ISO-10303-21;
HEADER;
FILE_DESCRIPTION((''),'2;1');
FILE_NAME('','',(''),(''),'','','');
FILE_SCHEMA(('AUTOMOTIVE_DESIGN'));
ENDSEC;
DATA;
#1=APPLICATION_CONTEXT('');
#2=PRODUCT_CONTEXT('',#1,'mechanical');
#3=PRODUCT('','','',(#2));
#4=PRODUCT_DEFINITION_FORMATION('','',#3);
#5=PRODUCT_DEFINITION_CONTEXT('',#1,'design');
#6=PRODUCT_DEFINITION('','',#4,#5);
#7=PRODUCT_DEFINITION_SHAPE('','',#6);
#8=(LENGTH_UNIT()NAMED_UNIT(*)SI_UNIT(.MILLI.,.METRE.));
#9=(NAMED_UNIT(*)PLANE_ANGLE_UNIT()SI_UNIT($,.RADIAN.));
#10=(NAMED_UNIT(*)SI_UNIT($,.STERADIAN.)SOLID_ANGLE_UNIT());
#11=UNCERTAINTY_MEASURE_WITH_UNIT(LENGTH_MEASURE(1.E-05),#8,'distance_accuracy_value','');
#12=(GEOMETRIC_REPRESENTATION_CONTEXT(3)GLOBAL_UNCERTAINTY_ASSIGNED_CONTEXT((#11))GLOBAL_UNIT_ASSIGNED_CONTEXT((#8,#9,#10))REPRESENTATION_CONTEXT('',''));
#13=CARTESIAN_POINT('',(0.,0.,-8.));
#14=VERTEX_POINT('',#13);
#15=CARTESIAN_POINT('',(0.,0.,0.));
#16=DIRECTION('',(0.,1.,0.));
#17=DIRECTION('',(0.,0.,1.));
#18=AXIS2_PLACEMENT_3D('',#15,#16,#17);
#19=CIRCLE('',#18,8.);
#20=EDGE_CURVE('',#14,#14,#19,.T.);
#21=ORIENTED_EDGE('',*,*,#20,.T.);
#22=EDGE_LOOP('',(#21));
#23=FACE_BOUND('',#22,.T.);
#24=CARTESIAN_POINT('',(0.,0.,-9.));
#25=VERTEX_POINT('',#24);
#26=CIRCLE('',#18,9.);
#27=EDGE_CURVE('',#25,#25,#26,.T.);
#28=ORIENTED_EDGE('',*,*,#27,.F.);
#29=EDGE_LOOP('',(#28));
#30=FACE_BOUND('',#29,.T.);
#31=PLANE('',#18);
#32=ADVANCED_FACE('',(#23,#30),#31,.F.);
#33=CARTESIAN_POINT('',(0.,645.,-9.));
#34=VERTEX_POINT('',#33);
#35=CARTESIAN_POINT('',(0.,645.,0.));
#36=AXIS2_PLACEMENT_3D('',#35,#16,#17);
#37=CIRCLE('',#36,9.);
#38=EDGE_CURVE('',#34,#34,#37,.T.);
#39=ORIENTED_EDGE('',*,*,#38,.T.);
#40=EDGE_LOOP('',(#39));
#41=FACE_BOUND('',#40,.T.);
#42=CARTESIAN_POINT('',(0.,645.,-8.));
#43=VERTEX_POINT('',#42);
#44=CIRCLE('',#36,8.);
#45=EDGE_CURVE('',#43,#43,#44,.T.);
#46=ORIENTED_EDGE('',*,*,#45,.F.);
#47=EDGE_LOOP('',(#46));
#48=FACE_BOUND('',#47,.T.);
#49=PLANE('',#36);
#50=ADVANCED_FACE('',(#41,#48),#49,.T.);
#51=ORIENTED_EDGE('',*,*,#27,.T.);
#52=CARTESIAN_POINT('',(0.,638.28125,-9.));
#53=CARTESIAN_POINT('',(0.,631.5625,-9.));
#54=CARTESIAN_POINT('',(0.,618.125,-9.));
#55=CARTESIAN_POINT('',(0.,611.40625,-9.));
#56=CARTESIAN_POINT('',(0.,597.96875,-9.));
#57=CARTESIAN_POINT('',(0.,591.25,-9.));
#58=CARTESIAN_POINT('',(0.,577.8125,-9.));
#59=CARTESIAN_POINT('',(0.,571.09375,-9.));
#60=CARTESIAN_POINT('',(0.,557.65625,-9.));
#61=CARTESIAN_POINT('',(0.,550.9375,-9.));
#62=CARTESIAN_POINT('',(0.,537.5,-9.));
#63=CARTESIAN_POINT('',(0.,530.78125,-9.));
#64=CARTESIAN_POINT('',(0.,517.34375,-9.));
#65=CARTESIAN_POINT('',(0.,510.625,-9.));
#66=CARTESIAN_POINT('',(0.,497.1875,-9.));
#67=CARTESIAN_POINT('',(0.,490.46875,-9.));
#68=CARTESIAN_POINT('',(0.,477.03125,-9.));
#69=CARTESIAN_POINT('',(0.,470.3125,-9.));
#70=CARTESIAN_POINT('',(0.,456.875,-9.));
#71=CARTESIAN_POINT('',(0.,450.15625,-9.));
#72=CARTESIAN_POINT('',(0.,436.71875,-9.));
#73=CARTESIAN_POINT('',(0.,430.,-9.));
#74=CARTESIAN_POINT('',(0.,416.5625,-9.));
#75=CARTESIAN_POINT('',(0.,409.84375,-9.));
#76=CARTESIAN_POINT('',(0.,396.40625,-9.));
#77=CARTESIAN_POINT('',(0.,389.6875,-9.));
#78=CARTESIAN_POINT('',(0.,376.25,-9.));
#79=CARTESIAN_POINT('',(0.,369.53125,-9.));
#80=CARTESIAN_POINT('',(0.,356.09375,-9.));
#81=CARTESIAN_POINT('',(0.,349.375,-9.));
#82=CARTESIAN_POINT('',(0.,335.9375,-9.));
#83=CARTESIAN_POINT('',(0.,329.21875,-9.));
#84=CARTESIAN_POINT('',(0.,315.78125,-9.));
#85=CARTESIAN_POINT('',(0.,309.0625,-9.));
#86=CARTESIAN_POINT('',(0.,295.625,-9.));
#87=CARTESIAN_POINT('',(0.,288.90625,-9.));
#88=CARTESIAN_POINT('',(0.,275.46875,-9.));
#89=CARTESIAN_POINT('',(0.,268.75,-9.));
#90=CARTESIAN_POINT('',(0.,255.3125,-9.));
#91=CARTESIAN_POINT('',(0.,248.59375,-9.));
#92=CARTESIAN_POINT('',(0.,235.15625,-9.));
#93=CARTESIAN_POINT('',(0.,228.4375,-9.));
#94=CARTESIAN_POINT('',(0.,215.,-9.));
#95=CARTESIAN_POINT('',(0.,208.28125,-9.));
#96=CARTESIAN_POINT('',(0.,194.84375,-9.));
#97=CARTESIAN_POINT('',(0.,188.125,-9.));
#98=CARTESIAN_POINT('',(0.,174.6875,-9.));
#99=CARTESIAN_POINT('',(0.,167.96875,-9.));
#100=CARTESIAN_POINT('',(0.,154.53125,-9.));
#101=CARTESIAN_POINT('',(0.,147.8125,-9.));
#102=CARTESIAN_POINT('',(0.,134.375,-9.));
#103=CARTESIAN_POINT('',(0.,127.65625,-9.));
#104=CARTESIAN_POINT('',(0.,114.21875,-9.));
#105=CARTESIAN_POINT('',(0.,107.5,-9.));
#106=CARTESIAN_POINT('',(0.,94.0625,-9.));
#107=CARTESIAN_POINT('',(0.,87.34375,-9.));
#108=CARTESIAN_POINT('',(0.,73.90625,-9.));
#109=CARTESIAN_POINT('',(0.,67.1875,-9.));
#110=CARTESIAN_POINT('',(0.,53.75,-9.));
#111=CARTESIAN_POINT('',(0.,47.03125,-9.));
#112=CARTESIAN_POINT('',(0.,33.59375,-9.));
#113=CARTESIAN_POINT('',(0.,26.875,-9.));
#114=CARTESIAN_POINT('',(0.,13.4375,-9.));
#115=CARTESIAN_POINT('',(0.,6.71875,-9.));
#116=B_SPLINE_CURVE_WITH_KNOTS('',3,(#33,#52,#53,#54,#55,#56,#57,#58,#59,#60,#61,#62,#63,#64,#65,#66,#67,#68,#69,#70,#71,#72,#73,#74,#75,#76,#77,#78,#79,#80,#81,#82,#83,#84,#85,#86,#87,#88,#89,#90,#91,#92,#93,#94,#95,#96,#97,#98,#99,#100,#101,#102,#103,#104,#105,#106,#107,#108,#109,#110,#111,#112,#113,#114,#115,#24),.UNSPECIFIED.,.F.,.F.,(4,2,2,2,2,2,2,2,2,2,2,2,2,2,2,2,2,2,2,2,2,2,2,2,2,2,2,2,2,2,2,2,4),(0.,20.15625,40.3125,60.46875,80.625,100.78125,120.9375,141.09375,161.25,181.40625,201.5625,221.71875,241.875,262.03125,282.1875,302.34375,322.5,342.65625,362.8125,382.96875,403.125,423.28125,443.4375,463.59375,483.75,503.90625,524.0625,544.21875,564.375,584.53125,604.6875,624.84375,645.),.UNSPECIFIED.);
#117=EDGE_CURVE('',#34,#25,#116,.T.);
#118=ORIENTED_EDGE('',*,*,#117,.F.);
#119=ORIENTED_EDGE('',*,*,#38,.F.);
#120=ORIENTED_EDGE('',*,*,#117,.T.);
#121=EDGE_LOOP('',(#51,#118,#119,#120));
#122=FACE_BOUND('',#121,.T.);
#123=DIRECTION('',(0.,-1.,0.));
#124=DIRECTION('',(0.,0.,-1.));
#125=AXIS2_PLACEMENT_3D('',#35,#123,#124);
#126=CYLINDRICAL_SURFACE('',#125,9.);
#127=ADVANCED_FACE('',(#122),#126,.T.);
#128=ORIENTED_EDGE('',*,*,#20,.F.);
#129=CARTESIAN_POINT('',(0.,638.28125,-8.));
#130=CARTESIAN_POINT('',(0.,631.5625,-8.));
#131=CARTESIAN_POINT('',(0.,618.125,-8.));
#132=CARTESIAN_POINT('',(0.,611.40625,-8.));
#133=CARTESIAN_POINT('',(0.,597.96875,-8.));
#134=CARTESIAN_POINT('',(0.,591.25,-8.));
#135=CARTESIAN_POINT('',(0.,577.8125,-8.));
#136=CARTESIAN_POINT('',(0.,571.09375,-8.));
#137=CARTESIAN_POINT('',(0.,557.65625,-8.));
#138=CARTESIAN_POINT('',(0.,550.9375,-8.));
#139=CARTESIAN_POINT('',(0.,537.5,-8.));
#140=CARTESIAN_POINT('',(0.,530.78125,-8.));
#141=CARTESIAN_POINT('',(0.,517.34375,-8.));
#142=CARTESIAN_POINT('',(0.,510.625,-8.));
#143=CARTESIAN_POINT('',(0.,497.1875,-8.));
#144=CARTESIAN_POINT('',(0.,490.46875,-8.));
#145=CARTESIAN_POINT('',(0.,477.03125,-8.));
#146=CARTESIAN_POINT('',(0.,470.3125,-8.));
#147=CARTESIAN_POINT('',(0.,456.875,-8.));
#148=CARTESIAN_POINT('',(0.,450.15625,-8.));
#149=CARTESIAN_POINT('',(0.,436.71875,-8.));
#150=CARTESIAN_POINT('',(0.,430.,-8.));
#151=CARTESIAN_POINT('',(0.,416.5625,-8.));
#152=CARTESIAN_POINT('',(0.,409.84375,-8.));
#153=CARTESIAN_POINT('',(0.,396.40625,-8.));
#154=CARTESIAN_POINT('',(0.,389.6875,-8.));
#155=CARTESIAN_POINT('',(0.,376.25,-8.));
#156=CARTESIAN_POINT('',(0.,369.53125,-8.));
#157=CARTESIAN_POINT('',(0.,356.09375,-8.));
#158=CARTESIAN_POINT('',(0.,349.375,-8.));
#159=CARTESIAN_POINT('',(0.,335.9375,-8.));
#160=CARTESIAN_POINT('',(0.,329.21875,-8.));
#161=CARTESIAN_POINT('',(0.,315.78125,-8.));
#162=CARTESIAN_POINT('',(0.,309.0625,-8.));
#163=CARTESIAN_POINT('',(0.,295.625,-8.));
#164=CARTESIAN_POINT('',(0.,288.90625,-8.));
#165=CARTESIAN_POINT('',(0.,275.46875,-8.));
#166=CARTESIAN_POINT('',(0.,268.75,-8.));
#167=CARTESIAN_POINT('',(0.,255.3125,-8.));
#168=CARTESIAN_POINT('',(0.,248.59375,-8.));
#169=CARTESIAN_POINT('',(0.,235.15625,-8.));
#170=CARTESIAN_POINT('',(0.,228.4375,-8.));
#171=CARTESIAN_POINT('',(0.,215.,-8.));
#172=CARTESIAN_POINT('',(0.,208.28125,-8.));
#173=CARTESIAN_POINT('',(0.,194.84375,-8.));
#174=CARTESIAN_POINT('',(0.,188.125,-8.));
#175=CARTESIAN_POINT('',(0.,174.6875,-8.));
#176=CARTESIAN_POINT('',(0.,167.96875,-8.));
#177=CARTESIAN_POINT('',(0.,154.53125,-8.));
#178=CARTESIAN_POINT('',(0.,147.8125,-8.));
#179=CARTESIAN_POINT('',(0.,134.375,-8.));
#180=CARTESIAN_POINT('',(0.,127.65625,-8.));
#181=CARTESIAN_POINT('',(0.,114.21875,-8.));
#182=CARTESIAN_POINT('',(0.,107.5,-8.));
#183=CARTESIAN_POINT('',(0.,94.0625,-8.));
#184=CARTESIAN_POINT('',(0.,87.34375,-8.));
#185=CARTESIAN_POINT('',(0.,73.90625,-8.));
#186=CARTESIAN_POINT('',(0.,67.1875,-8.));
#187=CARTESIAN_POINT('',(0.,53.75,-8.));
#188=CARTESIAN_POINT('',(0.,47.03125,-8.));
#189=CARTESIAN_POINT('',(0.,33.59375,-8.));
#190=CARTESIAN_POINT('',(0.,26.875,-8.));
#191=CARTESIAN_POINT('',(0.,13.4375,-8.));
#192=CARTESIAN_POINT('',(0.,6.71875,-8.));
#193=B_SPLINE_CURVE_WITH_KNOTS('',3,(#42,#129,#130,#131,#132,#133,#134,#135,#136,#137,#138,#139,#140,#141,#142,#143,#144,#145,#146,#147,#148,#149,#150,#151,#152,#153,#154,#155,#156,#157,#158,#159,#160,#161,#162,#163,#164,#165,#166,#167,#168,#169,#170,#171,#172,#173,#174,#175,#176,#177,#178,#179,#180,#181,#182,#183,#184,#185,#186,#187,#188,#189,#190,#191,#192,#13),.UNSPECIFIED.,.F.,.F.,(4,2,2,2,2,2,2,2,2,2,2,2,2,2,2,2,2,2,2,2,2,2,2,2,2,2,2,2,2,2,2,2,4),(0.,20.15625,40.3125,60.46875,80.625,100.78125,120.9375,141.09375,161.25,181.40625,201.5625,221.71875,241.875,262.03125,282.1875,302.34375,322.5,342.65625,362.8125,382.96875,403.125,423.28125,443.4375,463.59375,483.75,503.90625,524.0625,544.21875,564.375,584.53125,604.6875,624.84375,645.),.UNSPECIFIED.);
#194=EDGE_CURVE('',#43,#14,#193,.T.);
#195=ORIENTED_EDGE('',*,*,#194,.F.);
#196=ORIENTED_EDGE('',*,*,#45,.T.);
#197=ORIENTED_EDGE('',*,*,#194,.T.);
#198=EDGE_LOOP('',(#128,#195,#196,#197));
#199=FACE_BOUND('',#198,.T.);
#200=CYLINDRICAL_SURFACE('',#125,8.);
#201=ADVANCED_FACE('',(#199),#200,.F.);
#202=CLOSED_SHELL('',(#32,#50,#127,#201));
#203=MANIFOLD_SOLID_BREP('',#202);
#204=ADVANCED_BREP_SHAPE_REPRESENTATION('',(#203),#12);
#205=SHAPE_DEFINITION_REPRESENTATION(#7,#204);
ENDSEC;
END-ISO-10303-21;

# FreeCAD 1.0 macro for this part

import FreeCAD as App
import Part
import Sketcher
from FreeCAD import Vector

doc = App.newDocument("Part")
body = doc.addObject("PartDesign::Body", "Body")

# Sketch on XZ plane
sketch1 = body.newObject("Sketcher::SketchObject", "Sketch")
sketch1.AttachmentSupport = (doc.getObject("XZ_Plane"), [""])
sketch1.MapMode = "FlatFace"
sketch1.addGeometry(Part.Circle(Vector(0, 0, 0), Vector(0, 0, 1), 9), False)
sketch1.addGeometry(Part.Circle(Vector(0, 0, 0), Vector(0, 0, 1), 8), False)
sketch1.addConstraint(Sketcher.Constraint("Coincident", 0, 3, -1, 1))
sketch1.addConstraint(Sketcher.Constraint("Coincident", 1, 3, -1, 1))
sketch1.addConstraint(Sketcher.Constraint("Diameter", 0, 18.0))
sketch1.addConstraint(Sketcher.Constraint("Diameter", 1, 16.0))
pad1 = body.newObject("PartDesign::Pad", "Pad")
pad1.Profile = sketch1
pad1.Length = 645
pad1.Reversed = True

doc.recompute()
